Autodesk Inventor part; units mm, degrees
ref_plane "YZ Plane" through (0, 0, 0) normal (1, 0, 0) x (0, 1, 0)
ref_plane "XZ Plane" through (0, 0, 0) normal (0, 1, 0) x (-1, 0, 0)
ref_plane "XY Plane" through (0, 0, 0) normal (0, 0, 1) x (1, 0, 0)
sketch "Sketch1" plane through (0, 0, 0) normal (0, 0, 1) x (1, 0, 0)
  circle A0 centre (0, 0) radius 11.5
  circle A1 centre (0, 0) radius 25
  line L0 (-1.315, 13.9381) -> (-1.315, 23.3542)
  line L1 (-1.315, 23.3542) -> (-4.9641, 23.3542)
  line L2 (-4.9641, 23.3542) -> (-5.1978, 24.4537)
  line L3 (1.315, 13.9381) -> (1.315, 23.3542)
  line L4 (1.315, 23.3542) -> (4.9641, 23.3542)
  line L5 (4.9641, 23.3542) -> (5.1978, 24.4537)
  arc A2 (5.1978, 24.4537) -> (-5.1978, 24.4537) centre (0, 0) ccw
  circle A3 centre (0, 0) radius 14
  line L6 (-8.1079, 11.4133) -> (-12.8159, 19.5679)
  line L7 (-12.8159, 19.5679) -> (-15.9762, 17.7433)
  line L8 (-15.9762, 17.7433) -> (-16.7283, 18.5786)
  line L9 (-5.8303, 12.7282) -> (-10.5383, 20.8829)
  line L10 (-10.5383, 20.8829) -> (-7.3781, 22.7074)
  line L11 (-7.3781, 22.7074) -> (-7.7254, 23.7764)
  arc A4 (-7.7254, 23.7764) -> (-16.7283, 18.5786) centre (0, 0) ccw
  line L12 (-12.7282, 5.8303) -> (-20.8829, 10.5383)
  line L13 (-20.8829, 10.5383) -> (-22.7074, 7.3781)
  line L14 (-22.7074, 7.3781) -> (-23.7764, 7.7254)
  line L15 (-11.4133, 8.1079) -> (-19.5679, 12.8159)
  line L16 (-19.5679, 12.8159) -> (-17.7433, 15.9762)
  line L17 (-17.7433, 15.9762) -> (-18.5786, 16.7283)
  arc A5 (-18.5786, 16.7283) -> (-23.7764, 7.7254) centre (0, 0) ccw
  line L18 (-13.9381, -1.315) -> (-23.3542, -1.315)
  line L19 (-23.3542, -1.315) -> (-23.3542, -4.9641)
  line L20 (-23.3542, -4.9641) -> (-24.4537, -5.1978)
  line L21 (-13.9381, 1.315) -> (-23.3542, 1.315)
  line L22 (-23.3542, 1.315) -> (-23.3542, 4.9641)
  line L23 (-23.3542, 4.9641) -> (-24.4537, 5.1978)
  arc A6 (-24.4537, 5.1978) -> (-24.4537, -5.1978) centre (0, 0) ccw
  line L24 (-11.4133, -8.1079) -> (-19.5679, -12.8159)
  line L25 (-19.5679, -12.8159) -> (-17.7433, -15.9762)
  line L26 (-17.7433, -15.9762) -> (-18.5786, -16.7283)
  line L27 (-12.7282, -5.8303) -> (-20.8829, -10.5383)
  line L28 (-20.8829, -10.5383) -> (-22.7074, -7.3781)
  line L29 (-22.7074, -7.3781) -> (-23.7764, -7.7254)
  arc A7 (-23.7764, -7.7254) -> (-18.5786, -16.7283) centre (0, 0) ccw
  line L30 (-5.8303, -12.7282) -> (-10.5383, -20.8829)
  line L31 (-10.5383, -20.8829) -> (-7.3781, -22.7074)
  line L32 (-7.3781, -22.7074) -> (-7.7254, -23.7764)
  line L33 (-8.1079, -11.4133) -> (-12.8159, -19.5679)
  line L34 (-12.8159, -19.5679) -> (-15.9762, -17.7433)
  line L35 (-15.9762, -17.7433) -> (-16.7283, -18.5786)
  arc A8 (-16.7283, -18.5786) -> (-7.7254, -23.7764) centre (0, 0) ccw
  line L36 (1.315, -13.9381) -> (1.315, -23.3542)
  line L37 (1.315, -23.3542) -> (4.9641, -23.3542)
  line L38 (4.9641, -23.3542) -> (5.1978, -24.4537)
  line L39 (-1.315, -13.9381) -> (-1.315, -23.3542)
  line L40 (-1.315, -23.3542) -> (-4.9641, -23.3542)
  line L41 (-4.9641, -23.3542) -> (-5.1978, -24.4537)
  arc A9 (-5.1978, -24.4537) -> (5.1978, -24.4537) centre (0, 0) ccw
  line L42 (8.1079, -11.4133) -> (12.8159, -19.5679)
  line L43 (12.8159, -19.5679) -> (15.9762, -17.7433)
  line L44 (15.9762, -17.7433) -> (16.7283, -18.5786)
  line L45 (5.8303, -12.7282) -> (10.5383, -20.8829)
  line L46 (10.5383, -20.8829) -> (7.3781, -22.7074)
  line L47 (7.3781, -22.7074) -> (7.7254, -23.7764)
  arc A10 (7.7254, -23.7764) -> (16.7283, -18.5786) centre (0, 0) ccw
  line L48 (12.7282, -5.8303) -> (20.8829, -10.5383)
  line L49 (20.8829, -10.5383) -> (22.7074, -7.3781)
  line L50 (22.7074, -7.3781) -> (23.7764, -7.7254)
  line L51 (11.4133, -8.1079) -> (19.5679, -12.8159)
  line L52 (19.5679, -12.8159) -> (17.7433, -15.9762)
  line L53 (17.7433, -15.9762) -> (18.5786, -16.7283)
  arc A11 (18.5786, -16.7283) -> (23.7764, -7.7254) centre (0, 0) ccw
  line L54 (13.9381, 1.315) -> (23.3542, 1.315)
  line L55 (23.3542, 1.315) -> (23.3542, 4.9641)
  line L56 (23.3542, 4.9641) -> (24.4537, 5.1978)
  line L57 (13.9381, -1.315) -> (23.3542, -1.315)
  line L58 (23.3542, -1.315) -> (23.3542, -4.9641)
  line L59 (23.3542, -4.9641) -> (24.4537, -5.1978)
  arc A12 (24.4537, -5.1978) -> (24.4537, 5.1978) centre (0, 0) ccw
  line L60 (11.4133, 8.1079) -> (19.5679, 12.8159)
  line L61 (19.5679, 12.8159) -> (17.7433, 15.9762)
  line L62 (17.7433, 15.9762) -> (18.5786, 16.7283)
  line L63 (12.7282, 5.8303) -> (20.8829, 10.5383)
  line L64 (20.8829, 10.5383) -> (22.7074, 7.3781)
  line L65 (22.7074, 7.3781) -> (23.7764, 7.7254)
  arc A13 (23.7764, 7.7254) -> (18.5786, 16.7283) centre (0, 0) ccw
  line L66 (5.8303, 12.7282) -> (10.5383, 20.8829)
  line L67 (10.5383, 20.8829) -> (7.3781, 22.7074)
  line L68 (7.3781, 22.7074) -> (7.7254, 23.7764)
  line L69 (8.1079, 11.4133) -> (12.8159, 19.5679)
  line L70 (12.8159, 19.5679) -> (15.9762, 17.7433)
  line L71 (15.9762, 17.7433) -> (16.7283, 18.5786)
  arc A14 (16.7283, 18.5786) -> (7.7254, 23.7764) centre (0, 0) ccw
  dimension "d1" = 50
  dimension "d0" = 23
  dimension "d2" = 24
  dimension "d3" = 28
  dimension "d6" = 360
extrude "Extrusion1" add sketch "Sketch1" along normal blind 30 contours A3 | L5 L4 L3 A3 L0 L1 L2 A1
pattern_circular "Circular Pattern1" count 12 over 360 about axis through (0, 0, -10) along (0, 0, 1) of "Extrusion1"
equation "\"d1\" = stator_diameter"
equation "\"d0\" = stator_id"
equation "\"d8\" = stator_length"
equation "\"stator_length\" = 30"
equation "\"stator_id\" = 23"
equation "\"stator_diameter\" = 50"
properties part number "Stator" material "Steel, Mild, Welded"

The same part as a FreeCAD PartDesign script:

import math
import FreeCAD as App
import Part
import Sketcher
from FreeCAD import Vector
Q = App.Units.Quantity

doc = App.newDocument("Part")
body = doc.addObject("PartDesign::Body", "Body")

# Sketch on XY plane
sketch1 = body.newObject("Sketcher::SketchObject", "Sketch")
sketch1.AttachmentSupport = (doc.getObject("XY_Plane"), [""])
sketch1.MapMode = "FlatFace"
sketch1.addGeometry([
    Part.LineSegment(Vector(1.3, 13.9, 0), Vector(1.3, 23.4, 0)),  # 0
    Part.LineSegment(Vector(1.3, 23.4, 0), Vector(5, 23.4, 0)),  # 1
    Part.LineSegment(Vector(5, 23.4, 0), Vector(5.2, 24.5, 0)),  # 2
    Part.ArcOfCircle(Part.Circle(Vector(0, 0, 0), Vector(0, 0, 1), 25), math.radians(78), math.radians(102)),  # 3
    Part.LineSegment(Vector(-5.2, 24.5, 0), Vector(-5, 23.4, 0)),  # 4
    Part.LineSegment(Vector(-5, 23.4, 0), Vector(-1.3, 23.4, 0)),  # 5
    Part.LineSegment(Vector(-1.3, 23.4, 0), Vector(-1.3, 13.9, 0)),  # 6
    Part.ArcOfCircle(Part.Circle(Vector(0, 0, 0), Vector(0, 0, 1), 14), math.radians(95), math.radians(445)),  # 7
    Part.Circle(Vector(0, 0, 0), Vector(0, 0, 1), 11.5),  # 8
], False)
sketch1.addConstraint([
    Sketcher.Constraint("Coincident", 0, 2, 1, 1),
    Sketcher.Constraint("Coincident", 1, 2, 2, 1),
    Sketcher.Constraint("Coincident", 2, 2, 3, 1),
    Sketcher.Constraint("Coincident", 3, 2, 4, 1),
    Sketcher.Constraint("Coincident", 4, 2, 5, 1),
    Sketcher.Constraint("Coincident", 5, 2, 6, 1),
    Sketcher.Constraint("Coincident", 6, 2, 7, 1),
    Sketcher.Constraint("Coincident", 7, 2, 0, 1),
    Sketcher.Constraint("Vertical", 0),
    Sketcher.Constraint("Horizontal", 1),
    Sketcher.Constraint("Horizontal", 5),
    Sketcher.Constraint("Vertical", 6),
    Sketcher.Constraint("Coincident", 3, 3, -1, 1),
    Sketcher.Constraint("Coincident", 7, 3, -1, 1),
    Sketcher.Constraint("Coincident", 8, 3, -1, 1),
    Sketcher.Constraint("Symmetric", 1, 2, 4, 2, -2),
    Sketcher.Constraint("Horizontal", 2, 2, 3, 2),
    Sketcher.Constraint("Horizontal", 6, 2, 7, 2),
    Sketcher.Constraint("Diameter", 8, Q("23 mm")),
    Sketcher.Constraint("Radius", 3, Q("25 mm")),
    Sketcher.Constraint("Radius", 7, Q("14 mm")),
    Sketcher.Constraint("Angle", 2, Q("78.0003 deg")),
    Sketcher.Constraint("DistanceX", 1, 1, 1, 2, Q("3.649 mm")),
    Sketcher.Constraint("DistanceY", 0, 1, 0, 2, Q("9.416 mm")),
    Sketcher.Constraint("DistanceX", 5, 2, 0, 2, Q("2.63 mm")),
])
pad1 = body.newObject("PartDesign::Pad", "Pad")
pad1.Profile = sketch1
pad1.Length = 30
doc.recompute()

polarpattern = body.newObject("PartDesign::PolarPattern", "PolarPattern")
polarpattern.Originals = [pad1]
polarpattern.Axis = (doc.getObject("Z_Axis"), [""])
polarpattern.Angle = 360
polarpattern.Occurrences = 12
body.Tip = polarpattern

doc.recompute()
